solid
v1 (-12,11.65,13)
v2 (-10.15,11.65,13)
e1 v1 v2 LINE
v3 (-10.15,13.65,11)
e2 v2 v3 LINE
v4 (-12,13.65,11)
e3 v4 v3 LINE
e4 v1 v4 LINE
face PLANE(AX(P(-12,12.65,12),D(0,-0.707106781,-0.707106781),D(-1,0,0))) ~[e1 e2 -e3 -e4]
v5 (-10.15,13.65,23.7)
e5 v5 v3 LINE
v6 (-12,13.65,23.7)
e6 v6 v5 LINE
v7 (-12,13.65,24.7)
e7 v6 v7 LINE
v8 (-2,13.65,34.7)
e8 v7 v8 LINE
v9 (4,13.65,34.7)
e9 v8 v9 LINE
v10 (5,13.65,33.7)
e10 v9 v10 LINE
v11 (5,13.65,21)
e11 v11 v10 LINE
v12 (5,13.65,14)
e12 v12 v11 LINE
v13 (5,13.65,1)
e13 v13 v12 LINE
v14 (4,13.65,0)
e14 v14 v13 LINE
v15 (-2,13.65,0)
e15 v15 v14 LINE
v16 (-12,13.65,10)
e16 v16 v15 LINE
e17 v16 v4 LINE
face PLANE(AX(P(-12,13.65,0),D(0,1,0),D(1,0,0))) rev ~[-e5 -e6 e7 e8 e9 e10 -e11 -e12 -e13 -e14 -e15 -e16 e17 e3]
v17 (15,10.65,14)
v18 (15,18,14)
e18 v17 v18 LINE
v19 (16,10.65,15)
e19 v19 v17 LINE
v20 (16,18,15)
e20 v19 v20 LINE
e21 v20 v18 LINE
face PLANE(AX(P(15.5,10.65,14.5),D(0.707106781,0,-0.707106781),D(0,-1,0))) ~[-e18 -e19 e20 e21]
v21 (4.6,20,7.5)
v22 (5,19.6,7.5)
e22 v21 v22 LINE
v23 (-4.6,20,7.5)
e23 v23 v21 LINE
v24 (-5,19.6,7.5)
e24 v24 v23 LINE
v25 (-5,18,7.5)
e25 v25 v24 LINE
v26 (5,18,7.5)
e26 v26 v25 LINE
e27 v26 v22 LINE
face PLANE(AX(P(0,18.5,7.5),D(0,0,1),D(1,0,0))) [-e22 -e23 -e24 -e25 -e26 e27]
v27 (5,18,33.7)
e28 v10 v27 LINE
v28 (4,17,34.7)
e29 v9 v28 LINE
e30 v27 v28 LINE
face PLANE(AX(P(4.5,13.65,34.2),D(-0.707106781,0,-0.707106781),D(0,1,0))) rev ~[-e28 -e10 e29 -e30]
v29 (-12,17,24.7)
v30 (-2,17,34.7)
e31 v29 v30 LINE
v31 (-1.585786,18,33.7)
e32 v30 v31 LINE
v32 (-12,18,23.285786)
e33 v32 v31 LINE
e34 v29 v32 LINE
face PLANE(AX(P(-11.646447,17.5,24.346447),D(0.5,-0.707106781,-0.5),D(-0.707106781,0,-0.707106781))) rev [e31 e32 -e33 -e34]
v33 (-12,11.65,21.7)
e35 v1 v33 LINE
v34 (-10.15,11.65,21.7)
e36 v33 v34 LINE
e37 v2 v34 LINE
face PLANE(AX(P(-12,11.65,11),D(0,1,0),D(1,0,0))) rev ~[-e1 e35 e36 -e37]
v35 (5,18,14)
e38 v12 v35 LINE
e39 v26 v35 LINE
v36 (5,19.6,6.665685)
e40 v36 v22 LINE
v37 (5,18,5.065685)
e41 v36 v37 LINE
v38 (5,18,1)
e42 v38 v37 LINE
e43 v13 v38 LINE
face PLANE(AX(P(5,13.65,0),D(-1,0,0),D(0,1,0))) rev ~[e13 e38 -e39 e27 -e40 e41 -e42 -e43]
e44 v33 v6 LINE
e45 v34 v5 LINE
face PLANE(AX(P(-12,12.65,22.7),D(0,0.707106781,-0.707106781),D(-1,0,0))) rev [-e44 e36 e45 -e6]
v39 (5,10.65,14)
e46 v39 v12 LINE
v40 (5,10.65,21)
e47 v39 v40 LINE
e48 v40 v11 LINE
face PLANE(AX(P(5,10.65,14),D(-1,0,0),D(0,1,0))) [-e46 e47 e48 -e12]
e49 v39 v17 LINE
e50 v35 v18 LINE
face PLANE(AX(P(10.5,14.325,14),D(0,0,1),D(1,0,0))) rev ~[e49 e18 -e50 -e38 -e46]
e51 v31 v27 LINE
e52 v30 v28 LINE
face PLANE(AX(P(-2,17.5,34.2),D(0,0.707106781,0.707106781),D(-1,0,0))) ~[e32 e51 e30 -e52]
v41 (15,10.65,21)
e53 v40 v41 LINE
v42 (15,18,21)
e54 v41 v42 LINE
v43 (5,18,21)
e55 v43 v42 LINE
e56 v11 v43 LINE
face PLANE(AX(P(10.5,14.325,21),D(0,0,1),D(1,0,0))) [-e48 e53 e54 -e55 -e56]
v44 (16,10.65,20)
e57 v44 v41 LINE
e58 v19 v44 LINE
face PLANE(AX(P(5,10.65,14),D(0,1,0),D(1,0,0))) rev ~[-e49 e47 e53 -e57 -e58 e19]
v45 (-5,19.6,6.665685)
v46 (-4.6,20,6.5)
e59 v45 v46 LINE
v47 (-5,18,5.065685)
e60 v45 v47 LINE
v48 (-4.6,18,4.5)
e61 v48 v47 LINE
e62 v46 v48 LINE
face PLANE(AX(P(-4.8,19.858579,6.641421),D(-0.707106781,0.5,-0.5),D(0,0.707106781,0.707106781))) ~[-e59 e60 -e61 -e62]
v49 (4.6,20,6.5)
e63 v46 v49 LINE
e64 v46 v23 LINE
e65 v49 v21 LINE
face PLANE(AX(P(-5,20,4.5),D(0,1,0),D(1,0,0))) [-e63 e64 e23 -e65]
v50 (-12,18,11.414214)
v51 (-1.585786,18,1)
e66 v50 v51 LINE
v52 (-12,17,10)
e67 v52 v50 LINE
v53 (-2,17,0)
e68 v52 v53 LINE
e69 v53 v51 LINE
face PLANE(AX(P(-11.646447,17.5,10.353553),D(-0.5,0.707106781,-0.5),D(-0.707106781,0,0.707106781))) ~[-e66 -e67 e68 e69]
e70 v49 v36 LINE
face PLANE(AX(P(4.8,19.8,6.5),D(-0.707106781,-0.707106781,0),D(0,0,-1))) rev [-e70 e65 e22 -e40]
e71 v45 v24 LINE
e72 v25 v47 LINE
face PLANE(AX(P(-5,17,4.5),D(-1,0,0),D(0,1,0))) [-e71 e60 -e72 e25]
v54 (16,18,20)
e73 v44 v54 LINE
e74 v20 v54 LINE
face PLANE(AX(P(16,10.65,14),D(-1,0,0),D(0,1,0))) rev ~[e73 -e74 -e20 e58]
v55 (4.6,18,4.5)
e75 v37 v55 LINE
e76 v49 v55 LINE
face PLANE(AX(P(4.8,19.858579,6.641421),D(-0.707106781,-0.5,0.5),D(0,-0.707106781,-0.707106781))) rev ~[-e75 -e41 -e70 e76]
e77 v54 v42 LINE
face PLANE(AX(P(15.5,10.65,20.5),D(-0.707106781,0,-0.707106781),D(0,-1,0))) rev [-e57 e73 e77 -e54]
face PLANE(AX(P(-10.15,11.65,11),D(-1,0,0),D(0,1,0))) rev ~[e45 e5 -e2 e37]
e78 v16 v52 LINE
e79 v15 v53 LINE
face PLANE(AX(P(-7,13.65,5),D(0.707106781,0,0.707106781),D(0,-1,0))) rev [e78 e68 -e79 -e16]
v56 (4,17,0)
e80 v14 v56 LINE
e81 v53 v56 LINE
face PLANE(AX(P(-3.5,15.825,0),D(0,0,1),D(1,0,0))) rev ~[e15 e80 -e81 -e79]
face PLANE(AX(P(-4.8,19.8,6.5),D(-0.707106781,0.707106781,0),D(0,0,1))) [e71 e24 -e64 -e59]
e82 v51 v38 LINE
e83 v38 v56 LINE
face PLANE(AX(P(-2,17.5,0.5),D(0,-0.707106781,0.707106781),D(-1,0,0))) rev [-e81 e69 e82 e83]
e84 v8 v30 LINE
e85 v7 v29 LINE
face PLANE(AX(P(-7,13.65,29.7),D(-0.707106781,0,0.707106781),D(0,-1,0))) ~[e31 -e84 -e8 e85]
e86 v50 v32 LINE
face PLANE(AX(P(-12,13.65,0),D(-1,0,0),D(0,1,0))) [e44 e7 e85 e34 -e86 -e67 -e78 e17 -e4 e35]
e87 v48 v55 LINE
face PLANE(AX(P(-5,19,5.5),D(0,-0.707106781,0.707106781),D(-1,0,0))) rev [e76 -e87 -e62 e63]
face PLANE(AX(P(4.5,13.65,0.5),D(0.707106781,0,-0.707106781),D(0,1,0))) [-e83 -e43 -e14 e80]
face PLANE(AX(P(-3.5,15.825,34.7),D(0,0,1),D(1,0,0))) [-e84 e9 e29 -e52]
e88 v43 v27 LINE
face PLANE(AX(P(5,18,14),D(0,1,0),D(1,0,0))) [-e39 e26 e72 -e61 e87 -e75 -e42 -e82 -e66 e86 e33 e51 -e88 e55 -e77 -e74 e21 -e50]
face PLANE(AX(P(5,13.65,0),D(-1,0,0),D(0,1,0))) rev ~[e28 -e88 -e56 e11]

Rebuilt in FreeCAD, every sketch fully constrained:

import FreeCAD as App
import Part
import Sketcher
Q = App.Units.Quantity


def edges_at(feature, points):
    """Names of the edges that pass closest to the given points."""
    edges = feature.Shape.Edges
    near = lambda p: min(range(len(edges)), key=lambda i: edges[i].distToShape(Part.Vertex(*p))[0])
    return sorted({f"Edge{near(p) + 1}" for p in points})


def add_polygon(sketch, points):
    """Adds a closed chain of lines whose ends are joined by coincident constraints."""
    first, n = sketch.GeometryCount, len(points)
    for a, b in zip(points, points[1:] + points[:1]):
        sketch.addGeometry(Part.LineSegment(App.Vector(*a, 0), App.Vector(*b, 0)), False)
    for i in range(n):
        sketch.addConstraint(Sketcher.Constraint("Coincident", first + i, 2, first + (i + 1) % n, 1))

doc = App.newDocument("Part")
body = doc.addObject("PartDesign::Body", "Body")

# Sketch on XY plane
sketch1 = body.newObject("Sketcher::SketchObject", "Sketch")
sketch1.AttachmentSupport = (doc.getObject("XY_Plane"), [""])
sketch1.MapMode = "FlatFace"
sketch1.AttachmentOffset = App.Placement(App.Vector(0, 0, 11), App.Rotation())
add_polygon(sketch1, [(-12, 14.65), (-12, 11.65), (-10.15, 11.65), (-10.15, 14.65)])  # lines 0-3
sketch1.addConstraint([
    Sketcher.Constraint("Vertical", 0),
    Sketcher.Constraint("Horizontal", 1),
    Sketcher.Constraint("Vertical", 2),
    Sketcher.Constraint("Horizontal", 3),
    Sketcher.Constraint("DistanceY", 0, 2, 0, 1, Q("3 mm")),
    Sketcher.Constraint("DistanceX", 0, 2, -1, 1, Q("12 mm")),
    Sketcher.Constraint("DistanceX", 1, 1, 1, 2, Q("1.85 mm")),
    Sketcher.Constraint("DistanceY", -1, 1, 0, 2, Q("11.65 mm")),
])
pad1 = body.newObject("PartDesign::Pad", "Pad")
pad1.Profile = sketch1
pad1.Length = 12.7
doc.recompute()

chamfer = body.newObject("PartDesign::Chamfer", "Chamfer")
chamfer.Base = (pad1, edges_at(pad1, [(-11.075, 11.65, 11), (-11.075, 11.65, 23.7)]))
chamfer.Size = 2
body2 = doc.addObject("PartDesign::Body", "Body001")

# Sketch on XY plane
sketch2 = body2.newObject("Sketcher::SketchObject", "Sketch001")
sketch2.AttachmentSupport = (doc.getObject("XY_Plane001"), [""])
sketch2.MapMode = "FlatFace"
add_polygon(sketch2, [(-12, 18), (-12, 13.65), (5, 13.65), (5, 18)])  # lines 0-3
sketch2.addConstraint([
    Sketcher.Constraint("Vertical", 0),
    Sketcher.Constraint("Horizontal", 1),
    Sketcher.Constraint("Vertical", 2),
    Sketcher.Constraint("Horizontal", 3),
    Sketcher.Constraint("DistanceX", 1, 1, 1, 2, Q("17 mm")),
    Sketcher.Constraint("DistanceX", 0, 2, -1, 1, Q("12 mm")),
    Sketcher.Constraint("DistanceY", -1, 1, 2, 2, Q("18 mm")),
    Sketcher.Constraint("DistanceY", 0, 2, 0, 1, Q("4.35 mm")),
])
pad2 = body2.newObject("PartDesign::Pad", "Pad001")
pad2.Profile = sketch2
pad2.Length = 34.7
doc.recompute()

chamfer2 = body2.newObject("PartDesign::Chamfer", "Chamfer001")
chamfer2.Base = (pad2, edges_at(pad2, [(-12, 15.825, 34.7), (-12, 15.825, 0)]))
chamfer2.Size = 10
doc.recompute()

chamfer3 = body2.newObject("PartDesign::Chamfer", "Chamfer002")
chamfer3.Base = (chamfer2, edges_at(chamfer2, [
    (-7, 18, 5),
    (-7, 18, 29.7),
    (1.5, 18, 0),
    (1.5, 18, 34.7),
    (5, 15.825, 0),
    (5, 15.825, 34.7),
]))
chamfer3.Size = 1
body3 = doc.addObject("PartDesign::Body", "Body002")

# Sketch on XY plane
sketch3 = body3.newObject("Sketcher::SketchObject", "Sketch002")
sketch3.AttachmentSupport = (doc.getObject("XY_Plane002"), [""])
sketch3.MapMode = "FlatFace"
sketch3.AttachmentOffset = App.Placement(App.Vector(0, 0, 14), App.Rotation())
add_polygon(sketch3, [(5, 18), (5, 10.65), (16, 10.65), (16, 18)])  # lines 0-3
sketch3.addConstraint([
    Sketcher.Constraint("Vertical", 0),
    Sketcher.Constraint("Horizontal", 1),
    Sketcher.Constraint("Vertical", 2),
    Sketcher.Constraint("Horizontal", 3),
    Sketcher.Constraint("DistanceX", 1, 1, 1, 2, Q("11 mm")),
    Sketcher.Constraint("DistanceX", -1, 1, 0, 2, Q("5 mm")),
    Sketcher.Constraint("DistanceY", -1, 1, 2, 2, Q("18 mm")),
    Sketcher.Constraint("DistanceY", 0, 2, 0, 1, Q("7.35 mm")),
])
pad3 = body3.newObject("PartDesign::Pad", "Pad002")
pad3.Profile = sketch3
pad3.Length = 7
doc.recompute()

chamfer4 = body3.newObject("PartDesign::Chamfer", "Chamfer003")
chamfer4.Base = (pad3, edges_at(pad3, [(16, 14.325, 21), (16, 14.325, 14)]))
chamfer4.Size = 1
body4 = doc.addObject("PartDesign::Body", "Body003")
body4.AllowCompound = True

# Sketch on XY plane
sketch4 = body4.newObject("Sketcher::SketchObject", "Sketch003")
sketch4.AttachmentSupport = (doc.getObject("XY_Plane003"), [""])
sketch4.MapMode = "FlatFace"
sketch4.AttachmentOffset = App.Placement(App.Vector(0, 0, 4.5), App.Rotation())
add_polygon(sketch4, [(-5, 20), (-5, 17), (5, 17), (5, 20)])  # lines 0-3
sketch4.addConstraint([
    Sketcher.Constraint("Vertical", 0),
    Sketcher.Constraint("Horizontal", 1),
    Sketcher.Constraint("Vertical", 2),
    Sketcher.Constraint("Horizontal", 3),
    Sketcher.Constraint("DistanceX", 1, 1, 1, 2, Q("10 mm")),
    Sketcher.Constraint("DistanceY", 0, 2, 0, 1, Q("3 mm")),
    Sketcher.Constraint("DistanceX", 0, 2, -1, 1, Q("5 mm")),
    Sketcher.Constraint("DistanceY", -1, 1, 0, 2, Q("17 mm")),
])
pad4 = body4.newObject("PartDesign::Pad", "Pad003")
pad4.Profile = sketch4
pad4.Length = 3
doc.recompute()

chamfer5 = body4.newObject("PartDesign::Chamfer", "Chamfer004")
chamfer5.Base = (pad4, edges_at(pad4, [(0, 20, 4.5)]))
chamfer5.Size = 2
doc.recompute()

chamfer6 = body4.newObject("PartDesign::Chamfer", "Chamfer005")
chamfer6.Base = (chamfer5, edges_at(chamfer5, [
    (-5, 20, 7),
    (-5, 19, 5.5),
    (5, 20, 7),
    (5, 19, 5.5),
]))
chamfer6.Size = 0.4
doc.recompute()

boolean = body4.newObject("PartDesign::Boolean", "Boolean")
boolean.Type = "Fuse"
boolean.addObjects([body])
doc.recompute()

boolean2 = body4.newObject("PartDesign::Boolean", "Boolean001")
boolean2.Type = "Fuse"
boolean2.addObjects([body2])
doc.recompute()

boolean3 = body4.newObject("PartDesign::Boolean", "Boolean002")
boolean3.Type = "Fuse"
boolean3.addObjects([body3])

doc.recompute()
